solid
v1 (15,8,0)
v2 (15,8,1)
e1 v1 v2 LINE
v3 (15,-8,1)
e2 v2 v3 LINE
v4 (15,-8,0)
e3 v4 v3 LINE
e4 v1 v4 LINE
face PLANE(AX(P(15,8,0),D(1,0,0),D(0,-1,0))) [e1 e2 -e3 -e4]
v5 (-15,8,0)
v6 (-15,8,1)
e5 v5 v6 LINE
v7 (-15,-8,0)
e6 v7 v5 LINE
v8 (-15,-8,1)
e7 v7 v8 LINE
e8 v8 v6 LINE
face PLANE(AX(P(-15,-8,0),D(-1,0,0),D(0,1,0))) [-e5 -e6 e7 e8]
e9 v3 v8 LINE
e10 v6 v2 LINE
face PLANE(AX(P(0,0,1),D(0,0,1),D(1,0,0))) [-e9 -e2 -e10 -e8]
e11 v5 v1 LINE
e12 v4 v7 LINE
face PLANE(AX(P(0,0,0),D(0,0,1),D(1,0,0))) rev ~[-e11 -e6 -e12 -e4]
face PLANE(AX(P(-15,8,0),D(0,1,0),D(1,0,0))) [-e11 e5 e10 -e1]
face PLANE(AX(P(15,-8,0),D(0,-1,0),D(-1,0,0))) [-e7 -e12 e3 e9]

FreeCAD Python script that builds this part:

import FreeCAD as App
import Part
import Sketcher

doc = App.newDocument("Part")
body = doc.addObject("PartDesign::Body", "Body")

sketch1 = body.newObject("Sketcher::SketchObject", "Sketch")
sketch1.AttachmentSupport = (doc.getObject("XY_Plane"), [""])
sketch1.MapMode = "FlatFace"
sketch1.addGeometry(Part.LineSegment(App.Vector(-15, -8, 0), App.Vector(15, -8, 0)), False)
sketch1.addGeometry(Part.LineSegment(App.Vector(15, -8, 0), App.Vector(15, 8, 0)), False)
sketch1.addGeometry(Part.LineSegment(App.Vector(15, 8, 0), App.Vector(-15, 8, 0)), False)
sketch1.addGeometry(Part.LineSegment(App.Vector(-15, 8, 0), App.Vector(-15, -8, 0)), False)
sketch1.addConstraint(Sketcher.Constraint("Coincident", 0, 2, 1, 1))
sketch1.addConstraint(Sketcher.Constraint("Coincident", 1, 2, 2, 1))
sketch1.addConstraint(Sketcher.Constraint("Coincident", 2, 2, 3, 1))
sketch1.addConstraint(Sketcher.Constraint("Coincident", 3, 2, 0, 1))
sketch1.addConstraint(Sketcher.Constraint("Horizontal", 0))
sketch1.addConstraint(Sketcher.Constraint("Vertical", 1))
sketch1.addConstraint(Sketcher.Constraint("Horizontal", 2))
sketch1.addConstraint(Sketcher.Constraint("Vertical", 3))
sketch1.addConstraint(Sketcher.Constraint("Symmetric", 0, 2, 2, 2, -1, 1))
sketch1.addConstraint(Sketcher.Constraint("DistanceX", 0, 1, 0, 2, 30.0))
sketch1.addConstraint(Sketcher.Constraint("DistanceY", 1, 1, 1, 2, 16.0))
pad1 = body.newObject("PartDesign::Pad", "Pad")
pad1.Profile = sketch1
pad1.Length = 1

doc.recompute()
